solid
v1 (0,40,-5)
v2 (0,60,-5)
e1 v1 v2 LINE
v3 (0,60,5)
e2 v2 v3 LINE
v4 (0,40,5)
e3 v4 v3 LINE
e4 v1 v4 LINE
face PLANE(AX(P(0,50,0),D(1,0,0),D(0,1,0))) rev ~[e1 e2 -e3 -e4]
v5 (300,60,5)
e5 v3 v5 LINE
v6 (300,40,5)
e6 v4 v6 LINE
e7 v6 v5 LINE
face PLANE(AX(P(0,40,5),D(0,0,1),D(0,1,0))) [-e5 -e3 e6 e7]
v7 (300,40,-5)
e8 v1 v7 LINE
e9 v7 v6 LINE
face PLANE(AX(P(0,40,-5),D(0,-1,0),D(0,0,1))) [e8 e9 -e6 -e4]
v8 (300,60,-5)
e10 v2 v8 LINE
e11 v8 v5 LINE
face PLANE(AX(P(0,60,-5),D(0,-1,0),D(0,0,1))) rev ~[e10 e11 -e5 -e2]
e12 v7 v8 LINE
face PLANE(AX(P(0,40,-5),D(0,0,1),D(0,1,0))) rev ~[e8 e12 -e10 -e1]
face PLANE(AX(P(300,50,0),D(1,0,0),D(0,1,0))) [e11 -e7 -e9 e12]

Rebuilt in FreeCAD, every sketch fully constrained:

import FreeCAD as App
import Part
import Sketcher

V = App.Vector
Q = App.Units.Quantity


def add_polygon(sketch, points):
    """Adds a closed chain of lines whose ends are joined by coincident constraints."""
    first, n = sketch.GeometryCount, len(points)
    for a, b in zip(points, points[1:] + points[:1]):
        sketch.addGeometry(Part.LineSegment(App.Vector(*a, 0), App.Vector(*b, 0)), False)
    for i in range(n):
        sketch.addConstraint(Sketcher.Constraint("Coincident", first + i, 2, first + (i + 1) % n, 1))

doc = App.newDocument("Part")
body = doc.addObject("PartDesign::Body", "Body")

# Sketch on YZ plane
sketch1 = body.newObject("Sketcher::SketchObject", "Sketch")
sketch1.AttachmentSupport = (doc.getObject("YZ_Plane"), [""])
sketch1.MapMode = "FlatFace"
add_polygon(sketch1, [(40, 5), (40, -5), (60, -5), (60, 5)])  # lines 0-3
sketch1.addConstraint(Sketcher.Constraint("Vertical", 0))
sketch1.addConstraint(Sketcher.Constraint("Horizontal", 1))
sketch1.addConstraint(Sketcher.Constraint("Vertical", 2))
sketch1.addConstraint(Sketcher.Constraint("Horizontal", 3))
sketch1.addConstraint(Sketcher.Constraint("DistanceX", 1, 1, 1, 2, Q("20 mm")))
sketch1.addConstraint(Sketcher.Constraint("DistanceY", 0, 2, 0, 1, Q("10 mm")))
sketch1.addConstraint(Sketcher.Constraint("DistanceX", -1, 1, 0, 2, Q("40 mm")))
sketch1.addConstraint(Sketcher.Constraint("DistanceY", 0, 2, -1, 1, Q("5 mm")))
pad1 = body.newObject("PartDesign::Pad", "Pad")
pad1.Profile = sketch1
pad1.Length = 300

doc.recompute()
